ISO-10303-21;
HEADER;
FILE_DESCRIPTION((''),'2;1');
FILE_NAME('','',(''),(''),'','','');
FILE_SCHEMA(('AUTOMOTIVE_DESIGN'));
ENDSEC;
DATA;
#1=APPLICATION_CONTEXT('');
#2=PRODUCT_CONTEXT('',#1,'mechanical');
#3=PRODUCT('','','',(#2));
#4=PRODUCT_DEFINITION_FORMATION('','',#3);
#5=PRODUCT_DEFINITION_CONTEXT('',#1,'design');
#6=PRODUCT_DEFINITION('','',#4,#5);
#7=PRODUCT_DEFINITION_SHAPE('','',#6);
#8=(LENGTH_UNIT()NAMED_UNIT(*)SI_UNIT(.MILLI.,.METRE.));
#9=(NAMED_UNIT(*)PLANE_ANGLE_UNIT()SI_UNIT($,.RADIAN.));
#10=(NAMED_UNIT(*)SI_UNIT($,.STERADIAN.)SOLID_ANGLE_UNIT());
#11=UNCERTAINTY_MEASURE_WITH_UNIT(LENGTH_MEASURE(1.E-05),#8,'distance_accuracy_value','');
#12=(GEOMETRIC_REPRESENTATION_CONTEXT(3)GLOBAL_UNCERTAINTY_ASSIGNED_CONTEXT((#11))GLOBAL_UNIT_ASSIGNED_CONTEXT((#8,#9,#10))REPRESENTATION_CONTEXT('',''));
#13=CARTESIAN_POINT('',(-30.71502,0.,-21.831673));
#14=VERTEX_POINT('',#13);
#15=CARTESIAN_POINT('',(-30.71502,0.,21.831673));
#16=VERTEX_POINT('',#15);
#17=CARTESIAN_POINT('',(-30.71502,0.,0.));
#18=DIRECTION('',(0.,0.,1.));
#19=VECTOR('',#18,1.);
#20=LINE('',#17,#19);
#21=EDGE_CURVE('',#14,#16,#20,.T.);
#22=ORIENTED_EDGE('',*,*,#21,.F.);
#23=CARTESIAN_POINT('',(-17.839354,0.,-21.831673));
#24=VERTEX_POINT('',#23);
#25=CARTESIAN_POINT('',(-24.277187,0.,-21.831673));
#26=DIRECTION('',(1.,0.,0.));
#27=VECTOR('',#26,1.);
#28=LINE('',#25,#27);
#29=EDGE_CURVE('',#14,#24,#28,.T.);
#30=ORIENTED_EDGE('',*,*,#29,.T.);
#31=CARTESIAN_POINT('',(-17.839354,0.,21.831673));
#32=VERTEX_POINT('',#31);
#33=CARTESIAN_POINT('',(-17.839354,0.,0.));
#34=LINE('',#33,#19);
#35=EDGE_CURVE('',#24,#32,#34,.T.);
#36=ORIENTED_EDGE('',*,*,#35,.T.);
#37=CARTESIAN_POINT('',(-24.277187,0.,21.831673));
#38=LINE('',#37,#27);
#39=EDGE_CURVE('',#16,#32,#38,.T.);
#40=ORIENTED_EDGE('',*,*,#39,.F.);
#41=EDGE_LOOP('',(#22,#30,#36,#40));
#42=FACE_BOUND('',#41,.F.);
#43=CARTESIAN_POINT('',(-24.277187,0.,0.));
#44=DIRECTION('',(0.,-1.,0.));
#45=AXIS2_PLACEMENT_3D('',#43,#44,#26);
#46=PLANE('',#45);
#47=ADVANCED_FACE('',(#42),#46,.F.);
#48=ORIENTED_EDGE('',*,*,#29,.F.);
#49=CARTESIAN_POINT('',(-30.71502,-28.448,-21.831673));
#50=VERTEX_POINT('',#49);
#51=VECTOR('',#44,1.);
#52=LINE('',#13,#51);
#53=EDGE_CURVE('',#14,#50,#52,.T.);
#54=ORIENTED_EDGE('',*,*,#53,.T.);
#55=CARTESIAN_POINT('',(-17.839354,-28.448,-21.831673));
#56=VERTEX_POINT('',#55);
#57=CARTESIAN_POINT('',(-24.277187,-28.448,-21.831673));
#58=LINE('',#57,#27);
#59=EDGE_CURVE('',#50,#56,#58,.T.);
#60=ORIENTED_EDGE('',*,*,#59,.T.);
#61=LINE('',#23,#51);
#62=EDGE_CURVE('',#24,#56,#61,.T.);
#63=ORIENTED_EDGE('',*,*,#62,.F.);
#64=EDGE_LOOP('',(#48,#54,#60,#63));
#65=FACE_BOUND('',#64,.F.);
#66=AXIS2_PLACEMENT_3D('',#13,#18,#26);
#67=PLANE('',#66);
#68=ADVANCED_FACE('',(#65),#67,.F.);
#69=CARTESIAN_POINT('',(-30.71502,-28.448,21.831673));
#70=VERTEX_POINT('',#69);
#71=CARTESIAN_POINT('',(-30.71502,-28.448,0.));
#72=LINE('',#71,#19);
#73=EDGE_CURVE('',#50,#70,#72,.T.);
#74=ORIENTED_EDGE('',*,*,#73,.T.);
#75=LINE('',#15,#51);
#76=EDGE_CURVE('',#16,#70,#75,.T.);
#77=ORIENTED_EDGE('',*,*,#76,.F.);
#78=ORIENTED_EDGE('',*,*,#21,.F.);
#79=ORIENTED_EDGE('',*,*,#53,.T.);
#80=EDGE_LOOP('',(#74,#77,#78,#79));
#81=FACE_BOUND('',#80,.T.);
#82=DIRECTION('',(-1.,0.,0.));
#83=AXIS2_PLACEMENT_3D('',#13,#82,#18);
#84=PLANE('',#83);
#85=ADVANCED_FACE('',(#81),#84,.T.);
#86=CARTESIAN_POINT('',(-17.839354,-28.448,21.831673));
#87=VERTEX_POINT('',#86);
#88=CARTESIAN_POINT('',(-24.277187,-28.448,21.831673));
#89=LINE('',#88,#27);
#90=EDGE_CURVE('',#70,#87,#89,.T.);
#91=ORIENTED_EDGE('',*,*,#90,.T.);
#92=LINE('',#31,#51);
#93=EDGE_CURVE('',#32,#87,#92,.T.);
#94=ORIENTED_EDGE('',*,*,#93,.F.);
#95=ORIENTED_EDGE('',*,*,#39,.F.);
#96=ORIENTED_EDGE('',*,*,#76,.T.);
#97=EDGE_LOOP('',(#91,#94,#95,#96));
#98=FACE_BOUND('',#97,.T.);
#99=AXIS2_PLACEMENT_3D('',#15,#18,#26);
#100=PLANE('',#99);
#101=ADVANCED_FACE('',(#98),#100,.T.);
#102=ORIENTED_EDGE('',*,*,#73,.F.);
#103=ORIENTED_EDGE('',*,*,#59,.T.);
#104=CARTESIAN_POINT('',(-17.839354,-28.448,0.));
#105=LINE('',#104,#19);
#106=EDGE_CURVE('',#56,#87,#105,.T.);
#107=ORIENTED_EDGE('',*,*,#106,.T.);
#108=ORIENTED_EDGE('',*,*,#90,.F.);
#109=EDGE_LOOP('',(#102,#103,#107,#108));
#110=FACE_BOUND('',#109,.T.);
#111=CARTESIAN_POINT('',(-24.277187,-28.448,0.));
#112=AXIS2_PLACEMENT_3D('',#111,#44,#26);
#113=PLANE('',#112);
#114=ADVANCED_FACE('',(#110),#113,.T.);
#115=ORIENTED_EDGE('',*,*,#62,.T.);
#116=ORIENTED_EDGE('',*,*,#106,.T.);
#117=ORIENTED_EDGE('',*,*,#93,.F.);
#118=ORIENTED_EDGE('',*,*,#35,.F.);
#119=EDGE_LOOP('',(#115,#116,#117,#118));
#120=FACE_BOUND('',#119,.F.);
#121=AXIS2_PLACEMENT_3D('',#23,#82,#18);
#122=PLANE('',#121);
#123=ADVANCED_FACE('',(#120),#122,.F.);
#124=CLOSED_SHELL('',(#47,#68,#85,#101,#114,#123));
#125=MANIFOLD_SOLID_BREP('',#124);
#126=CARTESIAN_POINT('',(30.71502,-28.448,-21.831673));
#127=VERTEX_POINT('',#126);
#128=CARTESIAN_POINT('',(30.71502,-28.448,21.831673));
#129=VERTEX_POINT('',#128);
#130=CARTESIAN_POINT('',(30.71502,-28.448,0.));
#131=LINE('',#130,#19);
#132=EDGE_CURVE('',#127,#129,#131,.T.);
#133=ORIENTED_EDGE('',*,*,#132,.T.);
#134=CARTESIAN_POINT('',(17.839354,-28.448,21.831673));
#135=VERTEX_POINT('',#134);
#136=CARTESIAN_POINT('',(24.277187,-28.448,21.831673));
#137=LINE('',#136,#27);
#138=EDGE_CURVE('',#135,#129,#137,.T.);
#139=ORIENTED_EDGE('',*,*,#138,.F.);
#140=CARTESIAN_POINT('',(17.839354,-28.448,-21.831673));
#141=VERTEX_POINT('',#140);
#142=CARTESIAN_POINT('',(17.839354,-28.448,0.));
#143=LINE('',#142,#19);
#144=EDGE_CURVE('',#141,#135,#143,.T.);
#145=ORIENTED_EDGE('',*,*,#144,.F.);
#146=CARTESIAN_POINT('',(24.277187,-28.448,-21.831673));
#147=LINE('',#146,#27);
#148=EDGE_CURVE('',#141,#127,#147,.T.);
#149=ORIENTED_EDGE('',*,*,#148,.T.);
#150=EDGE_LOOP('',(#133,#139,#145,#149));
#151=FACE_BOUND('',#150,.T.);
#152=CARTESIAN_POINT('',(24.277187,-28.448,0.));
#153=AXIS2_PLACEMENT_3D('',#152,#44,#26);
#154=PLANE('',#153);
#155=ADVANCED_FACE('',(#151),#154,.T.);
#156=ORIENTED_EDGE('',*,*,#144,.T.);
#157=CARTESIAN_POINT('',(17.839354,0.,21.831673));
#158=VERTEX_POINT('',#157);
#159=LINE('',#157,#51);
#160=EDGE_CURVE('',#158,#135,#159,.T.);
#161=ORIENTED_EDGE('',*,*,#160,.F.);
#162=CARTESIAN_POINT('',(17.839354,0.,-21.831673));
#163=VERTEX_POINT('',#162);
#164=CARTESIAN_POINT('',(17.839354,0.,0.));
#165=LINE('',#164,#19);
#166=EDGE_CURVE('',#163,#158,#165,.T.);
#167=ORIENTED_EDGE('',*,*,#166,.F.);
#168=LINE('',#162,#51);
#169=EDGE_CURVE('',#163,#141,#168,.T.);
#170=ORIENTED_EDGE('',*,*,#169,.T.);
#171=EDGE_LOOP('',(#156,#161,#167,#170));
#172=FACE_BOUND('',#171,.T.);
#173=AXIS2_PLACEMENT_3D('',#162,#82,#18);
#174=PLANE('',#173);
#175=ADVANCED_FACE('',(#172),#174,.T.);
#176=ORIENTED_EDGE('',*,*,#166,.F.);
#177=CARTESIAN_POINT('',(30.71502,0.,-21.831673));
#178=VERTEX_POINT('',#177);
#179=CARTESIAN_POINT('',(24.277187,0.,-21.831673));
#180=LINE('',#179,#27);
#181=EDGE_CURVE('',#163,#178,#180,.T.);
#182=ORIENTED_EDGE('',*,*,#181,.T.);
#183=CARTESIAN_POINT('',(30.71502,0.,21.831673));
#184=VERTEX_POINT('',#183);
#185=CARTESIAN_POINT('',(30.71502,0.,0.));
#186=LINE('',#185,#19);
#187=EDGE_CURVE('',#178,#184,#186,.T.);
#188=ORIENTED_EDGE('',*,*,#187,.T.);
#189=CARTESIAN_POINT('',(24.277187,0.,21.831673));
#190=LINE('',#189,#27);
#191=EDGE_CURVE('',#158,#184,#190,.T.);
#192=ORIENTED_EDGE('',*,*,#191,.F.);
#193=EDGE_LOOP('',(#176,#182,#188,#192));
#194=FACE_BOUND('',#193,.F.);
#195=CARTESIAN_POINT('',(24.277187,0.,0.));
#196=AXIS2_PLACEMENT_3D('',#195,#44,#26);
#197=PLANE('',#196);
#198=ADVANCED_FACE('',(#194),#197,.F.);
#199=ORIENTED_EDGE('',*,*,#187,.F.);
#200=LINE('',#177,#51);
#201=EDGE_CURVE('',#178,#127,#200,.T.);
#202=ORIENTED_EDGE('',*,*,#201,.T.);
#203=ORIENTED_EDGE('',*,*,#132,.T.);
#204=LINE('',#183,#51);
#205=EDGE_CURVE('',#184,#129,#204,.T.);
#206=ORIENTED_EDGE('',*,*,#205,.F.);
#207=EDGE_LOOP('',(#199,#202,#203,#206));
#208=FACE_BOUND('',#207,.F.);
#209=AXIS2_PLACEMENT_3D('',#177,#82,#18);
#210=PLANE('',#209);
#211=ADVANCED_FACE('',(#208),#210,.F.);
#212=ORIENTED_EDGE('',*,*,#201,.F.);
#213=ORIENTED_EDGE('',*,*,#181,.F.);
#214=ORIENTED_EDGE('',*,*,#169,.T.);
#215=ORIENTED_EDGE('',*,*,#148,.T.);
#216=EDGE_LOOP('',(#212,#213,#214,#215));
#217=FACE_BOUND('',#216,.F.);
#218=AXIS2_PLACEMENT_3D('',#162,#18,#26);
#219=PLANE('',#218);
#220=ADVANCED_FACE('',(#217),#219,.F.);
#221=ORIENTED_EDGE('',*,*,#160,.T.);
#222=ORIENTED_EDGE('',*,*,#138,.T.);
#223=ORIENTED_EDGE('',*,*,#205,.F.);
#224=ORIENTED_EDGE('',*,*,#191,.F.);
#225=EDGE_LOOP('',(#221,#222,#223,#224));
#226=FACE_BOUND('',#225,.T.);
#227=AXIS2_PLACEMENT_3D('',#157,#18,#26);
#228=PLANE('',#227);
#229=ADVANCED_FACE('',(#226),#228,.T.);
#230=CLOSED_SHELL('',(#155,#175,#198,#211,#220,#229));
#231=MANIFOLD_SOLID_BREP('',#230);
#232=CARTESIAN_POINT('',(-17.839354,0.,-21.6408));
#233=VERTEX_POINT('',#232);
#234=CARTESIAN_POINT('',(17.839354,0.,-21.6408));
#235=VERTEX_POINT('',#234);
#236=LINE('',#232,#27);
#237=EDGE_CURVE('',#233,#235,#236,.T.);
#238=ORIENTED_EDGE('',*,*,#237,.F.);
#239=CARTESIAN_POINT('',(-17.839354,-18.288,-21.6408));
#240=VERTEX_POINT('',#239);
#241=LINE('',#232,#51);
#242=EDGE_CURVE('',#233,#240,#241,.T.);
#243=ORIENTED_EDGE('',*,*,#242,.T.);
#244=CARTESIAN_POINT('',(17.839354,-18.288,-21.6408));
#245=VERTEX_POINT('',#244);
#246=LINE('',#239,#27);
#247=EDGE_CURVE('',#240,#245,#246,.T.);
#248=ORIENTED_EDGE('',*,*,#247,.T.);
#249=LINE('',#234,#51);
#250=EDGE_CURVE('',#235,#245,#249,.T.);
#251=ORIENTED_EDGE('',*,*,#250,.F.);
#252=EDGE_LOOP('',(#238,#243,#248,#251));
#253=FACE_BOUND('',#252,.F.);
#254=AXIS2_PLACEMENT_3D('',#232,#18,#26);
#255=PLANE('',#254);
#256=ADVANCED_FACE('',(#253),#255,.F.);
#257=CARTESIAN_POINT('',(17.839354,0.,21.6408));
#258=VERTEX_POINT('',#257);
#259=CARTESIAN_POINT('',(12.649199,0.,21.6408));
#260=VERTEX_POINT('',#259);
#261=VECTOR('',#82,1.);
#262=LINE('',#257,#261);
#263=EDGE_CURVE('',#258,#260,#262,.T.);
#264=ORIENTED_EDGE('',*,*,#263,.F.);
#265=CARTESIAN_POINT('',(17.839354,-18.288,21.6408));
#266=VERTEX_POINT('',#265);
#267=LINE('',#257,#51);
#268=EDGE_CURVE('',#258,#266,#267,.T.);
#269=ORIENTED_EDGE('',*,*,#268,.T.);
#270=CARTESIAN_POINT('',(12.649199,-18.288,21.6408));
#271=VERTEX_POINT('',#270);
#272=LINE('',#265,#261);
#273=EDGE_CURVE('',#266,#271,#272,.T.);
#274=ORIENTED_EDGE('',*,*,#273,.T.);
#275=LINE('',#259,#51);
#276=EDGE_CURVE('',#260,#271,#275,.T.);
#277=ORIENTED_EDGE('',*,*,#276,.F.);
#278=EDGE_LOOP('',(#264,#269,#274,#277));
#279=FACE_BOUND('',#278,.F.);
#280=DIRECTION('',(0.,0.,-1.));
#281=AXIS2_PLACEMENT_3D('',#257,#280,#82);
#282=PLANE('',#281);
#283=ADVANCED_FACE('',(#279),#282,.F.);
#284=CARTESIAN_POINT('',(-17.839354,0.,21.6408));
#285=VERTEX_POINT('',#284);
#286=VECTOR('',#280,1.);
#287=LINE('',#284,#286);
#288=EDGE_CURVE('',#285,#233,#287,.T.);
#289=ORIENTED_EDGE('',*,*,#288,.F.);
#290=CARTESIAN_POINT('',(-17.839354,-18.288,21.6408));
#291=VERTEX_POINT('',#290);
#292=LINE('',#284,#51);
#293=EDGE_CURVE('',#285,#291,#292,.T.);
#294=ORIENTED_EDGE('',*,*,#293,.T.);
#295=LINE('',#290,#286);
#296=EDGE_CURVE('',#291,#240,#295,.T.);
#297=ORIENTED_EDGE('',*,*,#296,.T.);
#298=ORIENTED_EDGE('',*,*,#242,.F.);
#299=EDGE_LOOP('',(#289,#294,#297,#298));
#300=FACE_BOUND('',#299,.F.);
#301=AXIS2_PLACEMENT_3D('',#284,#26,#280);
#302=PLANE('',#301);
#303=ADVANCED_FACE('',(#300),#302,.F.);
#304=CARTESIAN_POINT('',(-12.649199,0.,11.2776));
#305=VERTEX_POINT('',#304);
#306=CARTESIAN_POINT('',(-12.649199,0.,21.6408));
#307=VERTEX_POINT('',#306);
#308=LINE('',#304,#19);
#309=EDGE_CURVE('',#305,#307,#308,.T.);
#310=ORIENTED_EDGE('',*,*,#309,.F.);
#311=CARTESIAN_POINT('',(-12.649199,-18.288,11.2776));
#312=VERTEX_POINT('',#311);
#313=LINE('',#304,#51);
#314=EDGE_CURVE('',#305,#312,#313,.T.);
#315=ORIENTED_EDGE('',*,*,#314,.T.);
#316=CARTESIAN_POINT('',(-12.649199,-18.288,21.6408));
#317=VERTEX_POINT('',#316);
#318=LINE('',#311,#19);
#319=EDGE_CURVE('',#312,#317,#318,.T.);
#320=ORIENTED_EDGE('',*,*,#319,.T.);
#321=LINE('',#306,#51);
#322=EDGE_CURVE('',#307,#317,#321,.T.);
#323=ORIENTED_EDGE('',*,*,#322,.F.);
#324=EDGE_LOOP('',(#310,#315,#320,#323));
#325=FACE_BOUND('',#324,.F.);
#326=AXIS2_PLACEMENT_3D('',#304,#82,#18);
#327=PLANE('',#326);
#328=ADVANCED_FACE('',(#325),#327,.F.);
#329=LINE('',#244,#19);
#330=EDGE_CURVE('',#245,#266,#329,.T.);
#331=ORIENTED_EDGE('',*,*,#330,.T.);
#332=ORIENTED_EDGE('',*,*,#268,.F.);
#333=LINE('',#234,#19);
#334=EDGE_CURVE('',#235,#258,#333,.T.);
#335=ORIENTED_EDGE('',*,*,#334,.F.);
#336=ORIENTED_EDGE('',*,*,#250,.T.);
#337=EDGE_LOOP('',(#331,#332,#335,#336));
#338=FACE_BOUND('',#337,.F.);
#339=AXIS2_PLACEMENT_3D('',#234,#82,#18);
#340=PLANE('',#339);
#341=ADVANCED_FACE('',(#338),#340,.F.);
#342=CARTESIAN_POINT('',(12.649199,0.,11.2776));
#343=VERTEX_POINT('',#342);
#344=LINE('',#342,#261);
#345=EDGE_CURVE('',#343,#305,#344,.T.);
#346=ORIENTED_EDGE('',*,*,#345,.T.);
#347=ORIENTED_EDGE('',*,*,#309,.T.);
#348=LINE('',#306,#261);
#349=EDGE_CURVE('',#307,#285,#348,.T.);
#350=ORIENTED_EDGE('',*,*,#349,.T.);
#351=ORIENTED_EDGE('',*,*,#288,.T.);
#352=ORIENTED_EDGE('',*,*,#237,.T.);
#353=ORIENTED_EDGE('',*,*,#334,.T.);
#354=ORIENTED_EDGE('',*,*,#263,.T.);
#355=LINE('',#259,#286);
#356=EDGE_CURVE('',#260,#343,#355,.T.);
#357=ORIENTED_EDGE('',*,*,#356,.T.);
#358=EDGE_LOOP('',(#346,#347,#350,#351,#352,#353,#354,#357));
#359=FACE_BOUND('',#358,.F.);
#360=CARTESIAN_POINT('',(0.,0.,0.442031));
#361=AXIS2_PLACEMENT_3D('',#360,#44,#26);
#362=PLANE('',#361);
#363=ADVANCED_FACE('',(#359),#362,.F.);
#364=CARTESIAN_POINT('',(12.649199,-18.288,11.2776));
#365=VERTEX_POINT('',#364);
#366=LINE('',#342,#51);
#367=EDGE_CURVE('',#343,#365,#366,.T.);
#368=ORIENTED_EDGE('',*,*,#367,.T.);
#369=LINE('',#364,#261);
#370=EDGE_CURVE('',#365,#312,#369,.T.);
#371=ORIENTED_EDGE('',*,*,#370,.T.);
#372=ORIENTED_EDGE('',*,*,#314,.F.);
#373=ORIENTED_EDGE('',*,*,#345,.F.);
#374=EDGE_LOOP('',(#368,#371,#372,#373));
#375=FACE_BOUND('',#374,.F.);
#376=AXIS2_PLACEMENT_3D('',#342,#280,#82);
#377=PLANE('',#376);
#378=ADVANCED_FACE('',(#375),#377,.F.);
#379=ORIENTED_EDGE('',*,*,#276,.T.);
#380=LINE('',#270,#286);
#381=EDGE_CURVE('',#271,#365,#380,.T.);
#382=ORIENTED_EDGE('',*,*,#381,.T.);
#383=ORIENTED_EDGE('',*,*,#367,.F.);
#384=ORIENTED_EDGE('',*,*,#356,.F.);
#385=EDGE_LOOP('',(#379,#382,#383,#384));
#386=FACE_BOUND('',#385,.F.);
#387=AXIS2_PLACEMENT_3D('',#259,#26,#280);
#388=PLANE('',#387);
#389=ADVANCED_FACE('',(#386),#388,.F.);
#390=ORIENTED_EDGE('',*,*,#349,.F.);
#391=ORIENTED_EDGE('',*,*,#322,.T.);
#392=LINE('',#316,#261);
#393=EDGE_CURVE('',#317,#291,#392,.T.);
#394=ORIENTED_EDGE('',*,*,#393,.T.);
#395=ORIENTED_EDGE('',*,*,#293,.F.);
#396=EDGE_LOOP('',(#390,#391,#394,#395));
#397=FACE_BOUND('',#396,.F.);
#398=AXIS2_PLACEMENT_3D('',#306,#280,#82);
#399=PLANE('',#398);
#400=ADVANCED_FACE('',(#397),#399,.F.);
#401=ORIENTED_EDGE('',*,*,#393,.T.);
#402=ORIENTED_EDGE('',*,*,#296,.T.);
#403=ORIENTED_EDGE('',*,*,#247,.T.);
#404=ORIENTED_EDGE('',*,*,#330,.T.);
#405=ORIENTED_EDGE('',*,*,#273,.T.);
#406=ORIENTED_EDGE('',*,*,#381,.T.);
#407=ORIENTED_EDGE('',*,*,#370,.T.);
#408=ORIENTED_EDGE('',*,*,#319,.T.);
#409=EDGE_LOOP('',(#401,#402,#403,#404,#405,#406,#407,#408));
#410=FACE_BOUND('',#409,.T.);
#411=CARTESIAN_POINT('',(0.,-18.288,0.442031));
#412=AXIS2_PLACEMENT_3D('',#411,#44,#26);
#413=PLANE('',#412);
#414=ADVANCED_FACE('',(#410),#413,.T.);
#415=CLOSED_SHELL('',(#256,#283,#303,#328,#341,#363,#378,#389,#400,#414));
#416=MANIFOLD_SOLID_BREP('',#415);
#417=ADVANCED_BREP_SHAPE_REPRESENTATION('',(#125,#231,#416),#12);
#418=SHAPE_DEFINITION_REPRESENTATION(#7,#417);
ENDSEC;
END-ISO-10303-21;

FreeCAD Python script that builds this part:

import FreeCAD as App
import Part
import Sketcher

V = App.Vector
Q = App.Units.Quantity

doc = App.newDocument("Part")
params = doc.addObject("Spreadsheet::Sheet", "Params")
for row, (alias, value) in enumerate([
    ("sketch1_width", "0.9959999 in"),
    ("sketch1_height", "1.704 in"),
    ("sketch1_height2", "0.408 in"),
    ("pad1_length", "0.72 in"),
    ("pad2_length", "1.12 in"),
], start=1):
    params.set(f"A{row}", alias)
    params.set(f"B{row}", "=" + value)
    params.setAlias(f"B{row}", alias)

body = doc.addObject("PartDesign::Body", "Body")

sketch1 = doc.addObject("Sketcher::SketchObject", "Sketch")
body.addObject(sketch1)
sketch1.AttachmentSupport = (doc.XZ_Plane, [""])
sketch1.MapMode = "FlatFace"
sketch1.addGeometry(Part.LineSegment(V(-17.839354, -21.6408, 0), V(17.839354, -21.6408, 0)), False)
sketch1.addGeometry(Part.LineSegment(V(17.839354, -21.6408, 0), V(17.839354, 21.6408, 0)), False)
sketch1.addGeometry(Part.LineSegment(V(17.839354, 21.6408, 0), V(12.649199, 21.6408, 0)), False)
sketch1.addGeometry(Part.LineSegment(V(12.649199, 21.6408, 0), V(12.649199, 11.2776, 0)), False)
sketch1.addGeometry(Part.LineSegment(V(12.649199, 11.2776, 0), V(-12.649199, 11.2776, 0)), False)
sketch1.addGeometry(Part.LineSegment(V(-12.649199, 11.2776, 0), V(-12.649199, 21.6408, 0)), False)
sketch1.addGeometry(Part.LineSegment(V(-12.649199, 21.6408, 0), V(-17.839354, 21.6408, 0)), False)
sketch1.addGeometry(Part.LineSegment(V(-17.839354, 21.6408, 0), V(-17.839354, -21.6408, 0)), False)
sketch1.addConstraint(Sketcher.Constraint("Coincident", 0, 2, 1, 1))
sketch1.addConstraint(Sketcher.Constraint("Coincident", 1, 2, 2, 1))
sketch1.addConstraint(Sketcher.Constraint("Coincident", 2, 2, 3, 1))
sketch1.addConstraint(Sketcher.Constraint("Coincident", 3, 2, 4, 1))
sketch1.addConstraint(Sketcher.Constraint("Coincident", 4, 2, 5, 1))
sketch1.addConstraint(Sketcher.Constraint("Coincident", 5, 2, 6, 1))
sketch1.addConstraint(Sketcher.Constraint("Coincident", 6, 2, 7, 1))
sketch1.addConstraint(Sketcher.Constraint("Coincident", 7, 2, 0, 1))
sketch1.addConstraint(Sketcher.Constraint("Horizontal", 0))
sketch1.addConstraint(Sketcher.Constraint("Vertical", 1))
sketch1.addConstraint(Sketcher.Constraint("Horizontal", 2))
sketch1.addConstraint(Sketcher.Constraint("Vertical", 3))
sketch1.addConstraint(Sketcher.Constraint("Horizontal", 4))
sketch1.addConstraint(Sketcher.Constraint("Vertical", 5))
sketch1.addConstraint(Sketcher.Constraint("Horizontal", 6))
sketch1.addConstraint(Sketcher.Constraint("Vertical", 7))
sketch1.addConstraint(Sketcher.Constraint("Symmetric", 0, 2, 6, 2, -1, 1))
sketch1.addConstraint(Sketcher.Constraint("Symmetric", 2, 2, 5, 2, -2))
sketch1.addConstraint(Sketcher.Constraint("DistanceX", 4, 2, 4, 1, Q("0.9959999 in")))
sketch1.addConstraint(Sketcher.Constraint("DistanceY", 1, 1, 1, 2, Q("1.704 in")))
sketch1.addConstraint(Sketcher.Constraint("DistanceY", 3, 2, 3, 1, Q("0.408 in")))
sketch1.addConstraint(Sketcher.Constraint("DistanceX", 0, 1, 0, 2, Q("35.678708 mm")))
sketch1.setExpression("Constraints[18]", "Params.sketch1_width")
sketch1.setExpression("Constraints[19]", "Params.sketch1_height")
sketch1.setExpression("Constraints[20]", "Params.sketch1_height2")
pad1 = doc.addObject("PartDesign::Pad", "Pad")
body.addObject(pad1)
pad1.Profile = sketch1
pad1.setExpression("Length", "Params.pad1_length")
body2 = doc.addObject("PartDesign::Body", "Body001")
body2.AllowCompound = True

sketch2 = doc.addObject("Sketcher::SketchObject", "Sketch001")
body2.addObject(sketch2)
sketch2.AttachmentSupport = (doc.getObject("XZ_Plane001"), [""])
sketch2.MapMode = "FlatFace"
sketch2.addGeometry(Part.LineSegment(V(-30.71502, 21.831673, 0), V(-30.71502, -21.831673, 0)), False)
sketch2.addGeometry(Part.LineSegment(V(-30.71502, -21.831673, 0), V(-17.839354, -21.831673, 0)), False)
sketch2.addGeometry(Part.LineSegment(V(-17.839354, -21.831673, 0), V(-17.839354, 21.831673, 0)), False)
sketch2.addGeometry(Part.LineSegment(V(-17.839354, 21.831673, 0), V(-30.71502, 21.831673, 0)), False)
sketch2.addGeometry(Part.LineSegment(V(17.839354, 21.831673, 0), V(17.839354, -21.831673, 0)), False)
sketch2.addGeometry(Part.LineSegment(V(17.839354, -21.831673, 0), V(30.71502, -21.831673, 0)), False)
sketch2.addGeometry(Part.LineSegment(V(30.71502, -21.831673, 0), V(30.71502, 21.831673, 0)), False)
sketch2.addGeometry(Part.LineSegment(V(30.71502, 21.831673, 0), V(17.839354, 21.831673, 0)), False)
sketch2.addConstraint(Sketcher.Constraint("Coincident", 0, 2, 1, 1))
sketch2.addConstraint(Sketcher.Constraint("Coincident", 1, 2, 2, 1))
sketch2.addConstraint(Sketcher.Constraint("Coincident", 2, 2, 3, 1))
sketch2.addConstraint(Sketcher.Constraint("Coincident", 3, 2, 0, 1))
sketch2.addConstraint(Sketcher.Constraint("Coincident", 4, 2, 5, 1))
sketch2.addConstraint(Sketcher.Constraint("Coincident", 5, 2, 6, 1))
sketch2.addConstraint(Sketcher.Constraint("Coincident", 6, 2, 7, 1))
sketch2.addConstraint(Sketcher.Constraint("Coincident", 7, 2, 4, 1))
sketch2.addConstraint(Sketcher.Constraint("Vertical", 0))
sketch2.addConstraint(Sketcher.Constraint("Horizontal", 1))
sketch2.addConstraint(Sketcher.Constraint("Vertical", 2))
sketch2.addConstraint(Sketcher.Constraint("Horizontal", 3))
sketch2.addConstraint(Sketcher.Constraint("Vertical", 4))
sketch2.addConstraint(Sketcher.Constraint("Horizontal", 5))
sketch2.addConstraint(Sketcher.Constraint("Vertical", 6))
sketch2.addConstraint(Sketcher.Constraint("Horizontal", 7))
sketch2.addConstraint(Sketcher.Constraint("Symmetric", 2, 2, 4, 2, -1, 1))
sketch2.addConstraint(Sketcher.Constraint("Symmetric", 0, 2, 6, 2, -1, 1))
sketch2.addConstraint(Sketcher.Constraint("Horizontal", 1, 2, 4, 2))
sketch2.addConstraint(Sketcher.Constraint("DistanceX", 1, 1, 1, 2, Q("12.875666 mm")))
sketch2.addConstraint(Sketcher.Constraint("DistanceY", 0, 2, 0, 1, Q("43.663346 mm")))
sketch2.addConstraint(Sketcher.Constraint("DistanceX", 0, 2, -1, 1, Q("30.71502 mm")))
pad2 = doc.addObject("PartDesign::Pad", "Pad001")
body2.addObject(pad2)
pad2.Profile = sketch2
pad2.setExpression("Length", "Params.pad2_length")

doc.recompute()
